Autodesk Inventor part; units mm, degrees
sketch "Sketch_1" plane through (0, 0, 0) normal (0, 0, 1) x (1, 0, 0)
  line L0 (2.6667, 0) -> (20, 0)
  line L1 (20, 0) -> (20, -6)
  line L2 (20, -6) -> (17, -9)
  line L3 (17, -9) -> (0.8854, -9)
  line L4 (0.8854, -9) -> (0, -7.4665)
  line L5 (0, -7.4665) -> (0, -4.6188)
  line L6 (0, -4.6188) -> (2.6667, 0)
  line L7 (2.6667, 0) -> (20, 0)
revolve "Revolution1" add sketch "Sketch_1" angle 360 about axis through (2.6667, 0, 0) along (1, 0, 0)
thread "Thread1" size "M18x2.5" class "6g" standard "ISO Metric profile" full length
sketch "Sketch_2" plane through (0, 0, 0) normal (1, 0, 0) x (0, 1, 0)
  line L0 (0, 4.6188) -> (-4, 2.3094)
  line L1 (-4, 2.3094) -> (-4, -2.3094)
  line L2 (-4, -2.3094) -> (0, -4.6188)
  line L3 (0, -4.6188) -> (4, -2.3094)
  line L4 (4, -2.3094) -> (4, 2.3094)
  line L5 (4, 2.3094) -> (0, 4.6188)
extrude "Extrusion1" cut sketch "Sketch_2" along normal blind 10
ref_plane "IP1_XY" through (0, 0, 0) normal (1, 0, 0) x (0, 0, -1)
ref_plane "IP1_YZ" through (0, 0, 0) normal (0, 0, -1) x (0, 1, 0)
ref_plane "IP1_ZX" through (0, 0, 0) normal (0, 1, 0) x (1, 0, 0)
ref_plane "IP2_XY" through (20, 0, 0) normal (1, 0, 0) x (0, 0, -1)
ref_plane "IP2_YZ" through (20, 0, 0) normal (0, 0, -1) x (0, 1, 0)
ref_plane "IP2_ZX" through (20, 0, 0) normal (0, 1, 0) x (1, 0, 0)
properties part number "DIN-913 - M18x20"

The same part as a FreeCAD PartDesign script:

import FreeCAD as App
import Part
import Sketcher

V = App.Vector
Q = App.Units.Quantity

doc = App.newDocument("Part")
params = doc.addObject("Spreadsheet::Sheet", "Params")
for row, (alias, value) in enumerate([
    ("sketch1_height", "6 mm"),
    ("revolution_angle", "360 deg"),
    ("pocket1_length", "10 mm"),
], start=1):
    params.set(f"A{row}", alias)
    params.set(f"B{row}", "=" + value)
    params.setAlias(f"B{row}", alias)

body = doc.addObject("PartDesign::Body", "Body")

# Sketch on XY plane
sketch1 = body.newObject("Sketcher::SketchObject", "Sketch")
sketch1.AttachmentSupport = (doc.getObject("XY_Plane"), [""])
sketch1.MapMode = "FlatFace"
sketch1.addGeometry([
    Part.LineSegment(V(20, 0, 0), V(2.7, 0, 0)),  # 0
    Part.LineSegment(V(2.7, 0, 0), V(0, -4.6, 0)),  # 1
    Part.LineSegment(V(0, -4.6, 0), V(0, -7.5, 0)),  # 2
    Part.LineSegment(V(0, -7.5, 0), V(0.9, -9, 0)),  # 3
    Part.LineSegment(V(0.9, -9, 0), V(17, -9, 0)),  # 4
    Part.LineSegment(V(17, -9, 0), V(20, -6, 0)),  # 5
    Part.LineSegment(V(20, -6, 0), V(20, 0, 0)),  # 6
], False)
sketch1.addConstraint([
    Sketcher.Constraint("Coincident", 0, 2, 1, 1),
    Sketcher.Constraint("Coincident", 1, 2, 2, 1),
    Sketcher.Constraint("Coincident", 2, 2, 3, 1),
    Sketcher.Constraint("Coincident", 3, 2, 4, 1),
    Sketcher.Constraint("Coincident", 4, 2, 5, 1),
    Sketcher.Constraint("Coincident", 5, 2, 6, 1),
    Sketcher.Constraint("Coincident", 6, 2, 0, 1),
    Sketcher.Constraint("Horizontal", 0),
    Sketcher.Constraint("Vertical", 2),
    Sketcher.Constraint("Horizontal", 4),
    Sketcher.Constraint("Vertical", 6),
    Sketcher.Constraint("PointOnObject", 0, 2, -1),
    Sketcher.Constraint("PointOnObject", 1, 2, -2),
    Sketcher.Constraint("DistanceY", 6, 1, 6, 2, 6.0),
    Sketcher.Constraint("Angle", 1, Q("-120.0003 deg")),
    Sketcher.Constraint("Angle", 3, Q("-59.999 deg")),
    Sketcher.Constraint("Angle", 5, Q("45 deg")),
    Sketcher.Constraint("DistanceY", 3, 2, -1, 1, 9.0),
    Sketcher.Constraint("DistanceX", -1, 1, 4, 2, 17.0),
    Sketcher.Constraint("DistanceX", 0, 2, 0, 1, 17.3333),
    Sketcher.Constraint("DistanceX", 4, 1, 4, 2, 16.1146),
])
sketch1.setExpression("Constraints[13]", "Params.sketch1_height")
revolution = body.newObject("PartDesign::Revolution", "Revolution")
revolution.Profile = sketch1
revolution.ReferenceAxis = (sketch1, ["H_Axis"])
revolution.setExpression("Angle", "Params.revolution_angle")

# Sketch on YZ plane
sketch2 = body.newObject("Sketcher::SketchObject", "Sketch001")
sketch2.AttachmentSupport = (doc.getObject("YZ_Plane"), [""])
sketch2.MapMode = "FlatFace"
sketch2.addGeometry([
    Part.LineSegment(V(4, 2.3, 0), V(0, 4.6, 0)),  # 0
    Part.LineSegment(V(0, 4.6, 0), V(-4, 2.3, 0)),  # 1
    Part.LineSegment(V(-4, 2.3, 0), V(-4, -2.3, 0)),  # 2
    Part.LineSegment(V(-4, -2.3, 0), V(0, -4.6, 0)),  # 3
    Part.LineSegment(V(0, -4.6, 0), V(4, -2.3, 0)),  # 4
    Part.LineSegment(V(4, -2.3, 0), V(4, 2.3, 0)),  # 5
], False)
sketch2.addConstraint([
    Sketcher.Constraint("Coincident", 0, 2, 1, 1),
    Sketcher.Constraint("Coincident", 1, 2, 2, 1),
    Sketcher.Constraint("Coincident", 2, 2, 3, 1),
    Sketcher.Constraint("Coincident", 3, 2, 4, 1),
    Sketcher.Constraint("Coincident", 4, 2, 5, 1),
    Sketcher.Constraint("Coincident", 5, 2, 0, 1),
    Sketcher.Constraint("Vertical", 2),
    Sketcher.Constraint("Vertical", 5),
    Sketcher.Constraint("Symmetric", 0, 2, 3, 2, -1, 1),
    Sketcher.Constraint("Symmetric", 1, 2, 4, 2, -1, 1),
    Sketcher.Constraint("PointOnObject", 0, 2, -2),
    Sketcher.Constraint("Parallel", 0, 3),
    Sketcher.Constraint("Horizontal", 2, 2, 4, 2),
    Sketcher.Constraint("Angle", 0, Q("150 deg")),
    Sketcher.Constraint("DistanceX", 1, 2, -1, 1, 4.0),
    Sketcher.Constraint("DistanceY", 2, 2, 2, 1, 4.6188),
])
pocket1 = body.newObject("PartDesign::Pocket", "Pocket")
pocket1.Profile = sketch2
pocket1.setExpression("Length", "Params.pocket1_length")
pocket1.Reversed = True

doc.recompute()
